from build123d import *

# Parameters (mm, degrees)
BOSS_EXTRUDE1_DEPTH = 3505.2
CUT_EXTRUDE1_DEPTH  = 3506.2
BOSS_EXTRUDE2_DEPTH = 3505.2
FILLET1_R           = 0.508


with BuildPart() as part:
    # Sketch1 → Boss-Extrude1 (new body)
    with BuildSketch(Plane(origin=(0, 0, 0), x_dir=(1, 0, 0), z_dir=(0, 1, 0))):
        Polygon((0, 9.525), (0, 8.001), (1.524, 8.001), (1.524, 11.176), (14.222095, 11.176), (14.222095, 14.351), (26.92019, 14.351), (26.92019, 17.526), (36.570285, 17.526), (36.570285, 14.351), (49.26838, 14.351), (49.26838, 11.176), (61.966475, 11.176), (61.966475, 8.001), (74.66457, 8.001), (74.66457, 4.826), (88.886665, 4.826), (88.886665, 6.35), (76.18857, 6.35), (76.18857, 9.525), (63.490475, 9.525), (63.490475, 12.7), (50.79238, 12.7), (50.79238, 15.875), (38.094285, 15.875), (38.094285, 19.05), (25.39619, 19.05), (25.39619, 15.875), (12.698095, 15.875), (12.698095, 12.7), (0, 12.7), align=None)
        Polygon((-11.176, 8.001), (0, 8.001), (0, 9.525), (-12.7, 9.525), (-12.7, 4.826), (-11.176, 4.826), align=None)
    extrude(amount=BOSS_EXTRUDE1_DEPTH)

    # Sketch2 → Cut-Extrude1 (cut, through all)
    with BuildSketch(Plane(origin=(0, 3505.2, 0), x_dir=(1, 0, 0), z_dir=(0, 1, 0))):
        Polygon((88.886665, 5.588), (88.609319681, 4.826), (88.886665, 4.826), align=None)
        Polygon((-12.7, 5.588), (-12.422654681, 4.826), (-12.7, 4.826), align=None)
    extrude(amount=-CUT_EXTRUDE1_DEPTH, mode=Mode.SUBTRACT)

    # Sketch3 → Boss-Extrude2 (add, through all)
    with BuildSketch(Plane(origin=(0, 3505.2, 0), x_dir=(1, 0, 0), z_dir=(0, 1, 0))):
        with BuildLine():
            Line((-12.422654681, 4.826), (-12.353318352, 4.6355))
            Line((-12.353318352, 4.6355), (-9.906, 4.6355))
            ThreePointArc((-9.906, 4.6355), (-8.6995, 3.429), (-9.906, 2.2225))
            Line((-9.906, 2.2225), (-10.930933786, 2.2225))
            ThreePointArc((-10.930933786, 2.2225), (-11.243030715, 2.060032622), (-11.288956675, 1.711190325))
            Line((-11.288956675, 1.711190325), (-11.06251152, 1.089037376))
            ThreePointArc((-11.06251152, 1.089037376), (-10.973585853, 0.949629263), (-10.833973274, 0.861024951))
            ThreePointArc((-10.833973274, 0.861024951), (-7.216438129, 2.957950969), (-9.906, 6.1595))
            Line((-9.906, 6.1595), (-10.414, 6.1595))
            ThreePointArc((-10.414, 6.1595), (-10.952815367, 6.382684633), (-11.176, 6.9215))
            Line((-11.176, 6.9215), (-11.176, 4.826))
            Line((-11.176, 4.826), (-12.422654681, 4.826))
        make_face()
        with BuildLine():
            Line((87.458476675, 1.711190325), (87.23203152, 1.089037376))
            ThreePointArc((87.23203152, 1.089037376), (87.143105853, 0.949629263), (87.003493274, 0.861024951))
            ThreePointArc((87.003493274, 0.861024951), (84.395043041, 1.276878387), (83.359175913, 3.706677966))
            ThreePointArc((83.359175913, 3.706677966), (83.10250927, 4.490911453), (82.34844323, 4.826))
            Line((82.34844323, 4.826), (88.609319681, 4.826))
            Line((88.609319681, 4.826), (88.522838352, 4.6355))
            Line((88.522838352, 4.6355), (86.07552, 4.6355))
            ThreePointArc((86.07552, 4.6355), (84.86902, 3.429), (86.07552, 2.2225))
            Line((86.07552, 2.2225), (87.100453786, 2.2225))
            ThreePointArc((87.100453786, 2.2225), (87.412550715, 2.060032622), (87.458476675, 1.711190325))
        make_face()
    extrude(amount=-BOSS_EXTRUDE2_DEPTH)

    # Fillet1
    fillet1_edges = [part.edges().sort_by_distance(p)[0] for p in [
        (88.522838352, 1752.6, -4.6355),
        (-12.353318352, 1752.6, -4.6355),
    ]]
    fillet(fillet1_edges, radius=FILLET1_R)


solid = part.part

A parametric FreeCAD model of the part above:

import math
import FreeCAD as App
import Part
import Sketcher
Q = App.Units.Quantity


def edges_at(feature, points):
    """Names of the edges that pass closest to the given points."""
    edges = feature.Shape.Edges
    near = lambda p: min(range(len(edges)), key=lambda i: edges[i].distToShape(Part.Vertex(*p))[0])
    return sorted({f"Edge{near(p) + 1}" for p in points})

doc = App.newDocument("Part")
body = doc.addObject("PartDesign::Body", "Body")

# Sketch on XZ plane
sketch1 = body.newObject("Sketcher::SketchObject", "Sketch")
sketch1.AttachmentSupport = (doc.getObject("XZ_Plane"), [""])
sketch1.MapMode = "FlatFace"
sketch1.addGeometry([
    Part.LineSegment(App.Vector(1.5, -8, 0), App.Vector(1.5, -11.2, 0)),  # 0
    Part.LineSegment(App.Vector(1.5, -11.2, 0), App.Vector(14.2, -11.2, 0)),  # 1
    Part.LineSegment(App.Vector(14.2, -11.2, 0), App.Vector(14.2, -14.4, 0)),  # 2
    Part.LineSegment(App.Vector(14.2, -14.4, 0), App.Vector(26.9, -14.4, 0)),  # 3
    Part.LineSegment(App.Vector(26.9, -14.4, 0), App.Vector(26.9, -17.5, 0)),  # 4
    Part.LineSegment(App.Vector(26.9, -17.5, 0), App.Vector(36.6, -17.5, 0)),  # 5
    Part.LineSegment(App.Vector(36.6, -17.5, 0), App.Vector(36.6, -14.4, 0)),  # 6
    Part.LineSegment(App.Vector(36.6, -14.4, 0), App.Vector(49.3, -14.4, 0)),  # 7
    Part.LineSegment(App.Vector(49.3, -14.4, 0), App.Vector(49.3, -11.2, 0)),  # 8
    Part.LineSegment(App.Vector(49.3, -11.2, 0), App.Vector(62, -11.2, 0)),  # 9
    Part.LineSegment(App.Vector(62, -11.2, 0), App.Vector(62, -8, 0)),  # 10
    Part.LineSegment(App.Vector(62, -8, 0), App.Vector(74.7, -8, 0)),  # 11
    Part.LineSegment(App.Vector(74.7, -8, 0), App.Vector(74.7, -4.8, 0)),  # 12
    Part.LineSegment(App.Vector(74.7, -4.8, 0), App.Vector(88.9, -4.8, 0)),  # 13
    Part.LineSegment(App.Vector(88.9, -4.8, 0), App.Vector(88.9, -6.3, 0)),  # 14
    Part.LineSegment(App.Vector(88.9, -6.3, 0), App.Vector(76.2, -6.3, 0)),  # 15
    Part.LineSegment(App.Vector(76.2, -6.3, 0), App.Vector(76.2, -9.5, 0)),  # 16
    Part.LineSegment(App.Vector(76.2, -9.5, 0), App.Vector(63.5, -9.5, 0)),  # 17
    Part.LineSegment(App.Vector(63.5, -9.5, 0), App.Vector(63.5, -12.7, 0)),  # 18
    Part.LineSegment(App.Vector(63.5, -12.7, 0), App.Vector(50.8, -12.7, 0)),  # 19
    Part.LineSegment(App.Vector(50.8, -12.7, 0), App.Vector(50.8, -15.9, 0)),  # 20
    Part.LineSegment(App.Vector(50.8, -15.9, 0), App.Vector(38.1, -15.9, 0)),  # 21
    Part.LineSegment(App.Vector(38.1, -15.9, 0), App.Vector(38.1, -19.1, 0)),  # 22
    Part.LineSegment(App.Vector(38.1, -19.1, 0), App.Vector(25.4, -19.1, 0)),  # 23
    Part.LineSegment(App.Vector(25.4, -19.1, 0), App.Vector(25.4, -15.9, 0)),  # 24
    Part.LineSegment(App.Vector(25.4, -15.9, 0), App.Vector(12.7, -15.9, 0)),  # 25
    Part.LineSegment(App.Vector(12.7, -15.9, 0), App.Vector(12.7, -12.7, 0)),  # 26
    Part.LineSegment(App.Vector(12.7, -12.7, 0), App.Vector(0, -12.7, 0)),  # 27
    Part.LineSegment(App.Vector(0, -12.7, 0), App.Vector(0, -9.5, 0)),  # 28
    Part.LineSegment(App.Vector(0, -9.5, 0), App.Vector(-12.7, -9.5, 0)),  # 29
    Part.LineSegment(App.Vector(-12.7, -9.5, 0), App.Vector(-12.7, -4.8, 0)),  # 30
    Part.LineSegment(App.Vector(-12.7, -4.8, 0), App.Vector(-11.2, -4.8, 0)),  # 31
    Part.LineSegment(App.Vector(-11.2, -4.8, 0), App.Vector(-11.2, -8, 0)),  # 32
    Part.LineSegment(App.Vector(-11.2, -8, 0), App.Vector(1.5, -8, 0)),  # 33
], False)
sketch1.addConstraint([
    Sketcher.Constraint("Coincident", 0, 2, 1, 1),
    Sketcher.Constraint("Coincident", 1, 2, 2, 1),
    Sketcher.Constraint("Coincident", 2, 2, 3, 1),
    Sketcher.Constraint("Coincident", 3, 2, 4, 1),
    Sketcher.Constraint("Coincident", 4, 2, 5, 1),
    Sketcher.Constraint("Coincident", 5, 2, 6, 1),
    Sketcher.Constraint("Coincident", 6, 2, 7, 1),
    Sketcher.Constraint("Coincident", 7, 2, 8, 1),
    Sketcher.Constraint("Coincident", 8, 2, 9, 1),
    Sketcher.Constraint("Coincident", 9, 2, 10, 1),
    Sketcher.Constraint("Coincident", 10, 2, 11, 1),
    Sketcher.Constraint("Coincident", 11, 2, 12, 1),
    Sketcher.Constraint("Coincident", 12, 2, 13, 1),
    Sketcher.Constraint("Coincident", 13, 2, 14, 1),
    Sketcher.Constraint("Coincident", 14, 2, 15, 1),
    Sketcher.Constraint("Coincident", 15, 2, 16, 1),
    Sketcher.Constraint("Coincident", 16, 2, 17, 1),
    Sketcher.Constraint("Coincident", 17, 2, 18, 1),
    Sketcher.Constraint("Coincident", 18, 2, 19, 1),
    Sketcher.Constraint("Coincident", 19, 2, 20, 1),
    Sketcher.Constraint("Coincident", 20, 2, 21, 1),
    Sketcher.Constraint("Coincident", 21, 2, 22, 1),
    Sketcher.Constraint("Coincident", 22, 2, 23, 1),
    Sketcher.Constraint("Coincident", 23, 2, 24, 1),
    Sketcher.Constraint("Coincident", 24, 2, 25, 1),
    Sketcher.Constraint("Coincident", 25, 2, 26, 1),
    Sketcher.Constraint("Coincident", 26, 2, 27, 1),
    Sketcher.Constraint("Coincident", 27, 2, 28, 1),
    Sketcher.Constraint("Coincident", 28, 2, 29, 1),
    Sketcher.Constraint("Coincident", 29, 2, 30, 1),
    Sketcher.Constraint("Coincident", 30, 2, 31, 1),
    Sketcher.Constraint("Coincident", 31, 2, 32, 1),
    Sketcher.Constraint("Coincident", 32, 2, 33, 1),
    Sketcher.Constraint("Coincident", 33, 2, 0, 1),
    Sketcher.Constraint("Vertical", 0),
    Sketcher.Constraint("Horizontal", 1),
    Sketcher.Constraint("Vertical", 2),
    Sketcher.Constraint("Horizontal", 3),
    Sketcher.Constraint("Vertical", 4),
    Sketcher.Constraint("Horizontal", 5),
    Sketcher.Constraint("Vertical", 6),
    Sketcher.Constraint("Horizontal", 7),
    Sketcher.Constraint("Vertical", 8),
    Sketcher.Constraint("Horizontal", 9),
    Sketcher.Constraint("Vertical", 10),
    Sketcher.Constraint("Horizontal", 11),
    Sketcher.Constraint("Vertical", 12),
    Sketcher.Constraint("Horizontal", 13),
    Sketcher.Constraint("Vertical", 14),
    Sketcher.Constraint("Horizontal", 15),
    Sketcher.Constraint("Vertical", 16),
    Sketcher.Constraint("Horizontal", 17),
    Sketcher.Constraint("Vertical", 18),
    Sketcher.Constraint("Horizontal", 19),
    Sketcher.Constraint("Vertical", 20),
    Sketcher.Constraint("Horizontal", 21),
    Sketcher.Constraint("Vertical", 22),
    Sketcher.Constraint("Horizontal", 23),
    Sketcher.Constraint("Vertical", 24),
    Sketcher.Constraint("Horizontal", 25),
    Sketcher.Constraint("Vertical", 26),
    Sketcher.Constraint("Horizontal", 27),
    Sketcher.Constraint("Vertical", 28),
    Sketcher.Constraint("Horizontal", 29),
    Sketcher.Constraint("Vertical", 30),
    Sketcher.Constraint("Horizontal", 31),
    Sketcher.Constraint("Vertical", 32),
    Sketcher.Constraint("Horizontal", 33),
    Sketcher.Constraint("PointOnObject", 27, 2, -2),
    Sketcher.Constraint("Horizontal", 3, 2, 6, 2),
    Sketcher.Constraint("Horizontal", 1, 2, 8, 2),
    Sketcher.Constraint("Horizontal", 21, 2, 24, 2),
    Sketcher.Constraint("Horizontal", 19, 2, 26, 2),
    Sketcher.Constraint("Horizontal", 17, 2, 28, 2),
    Sketcher.Constraint("Horizontal", 13, 2, 30, 2),
    Sketcher.Constraint("Horizontal", 11, 2, 32, 2),
    Sketcher.Constraint("Equal", 1, 3),
    Sketcher.Constraint("Equal", 3, 7),
    Sketcher.Constraint("Equal", 7, 9),
    Sketcher.Constraint("Equal", 9, 11),
    Sketcher.Constraint("Equal", 11, 15),
    Sketcher.Constraint("Equal", 15, 17),
    Sketcher.Constraint("Equal", 17, 19),
    Sketcher.Constraint("Equal", 19, 21),
    Sketcher.Constraint("Equal", 21, 23),
    Sketcher.Constraint("Equal", 23, 25),
    Sketcher.Constraint("Equal", 25, 27),
    Sketcher.Constraint("Equal", 29, 33),
    Sketcher.Constraint("Equal", 0, 2),
    Sketcher.Constraint("Equal", 2, 4),
    Sketcher.Constraint("Equal", 10, 12),
    Sketcher.Constraint("Equal", 31, 14),
    Sketcher.Constraint("Equal", 12, 16),
    Sketcher.Constraint("Equal", 16, 18),
    Sketcher.Constraint("Equal", 18, 20),
    Sketcher.Constraint("Equal", 20, 22),
    Sketcher.Constraint("DistanceX", 29, 2, 29, 1, Q("0.5 in")),
    Sketcher.Constraint("DistanceX", 31, 1, 31, 2, Q("0.06 in")),
    Sketcher.Constraint("DistanceY", 18, 2, -1, 1, Q("0.5 in")),
    Sketcher.Constraint("DistanceY", 0, 2, 0, 1, Q("0.125 in")),
    Sketcher.Constraint("DistanceX", 12, 2, 15, 2, Q("0.06 in")),
    Sketcher.Constraint("DistanceX", -1, 1, 7, 2, Q("1.9397 in")),
])
pad1 = body.newObject("PartDesign::Pad", "Pad")
pad1.Profile = sketch1
pad1.Length = Q("138 in")
pad1.Reversed = True

# Sketch on XZ plane
sketch2 = body.newObject("Sketcher::SketchObject", "Sketch001")
sketch2.AttachmentSupport = (doc.getObject("XZ_Plane"), [""])
sketch2.MapMode = "FlatFace"
sketch2.AttachmentOffset = App.Placement(App.Vector(0, 0, -138 * 25.4), App.Rotation())
sketch2.addGeometry([
    Part.LineSegment(App.Vector(88.89, -5.59, 0), App.Vector(88.61, -4.83, 0)),  # 0
    Part.LineSegment(App.Vector(88.61, -4.83, 0), App.Vector(88.89, -4.83, 0)),  # 1
    Part.LineSegment(App.Vector(88.89, -4.83, 0), App.Vector(88.89, -5.59, 0)),  # 2
    Part.LineSegment(App.Vector(-12.42, -4.83, 0), App.Vector(-12.7, -5.59, 0)),  # 3
    Part.LineSegment(App.Vector(-12.7, -5.59, 0), App.Vector(-12.7, -4.83, 0)),  # 4
    Part.LineSegment(App.Vector(-12.7, -4.83, 0), App.Vector(-12.42, -4.83, 0)),  # 5
], False)
sketch2.addConstraint([
    Sketcher.Constraint("Coincident", 0, 2, 1, 1),
    Sketcher.Constraint("Coincident", 1, 2, 2, 1),
    Sketcher.Constraint("Coincident", 2, 2, 0, 1),
    Sketcher.Constraint("Coincident", 3, 2, 4, 1),
    Sketcher.Constraint("Coincident", 4, 2, 5, 1),
    Sketcher.Constraint("Coincident", 5, 2, 3, 1),
    Sketcher.Constraint("Horizontal", 1),
    Sketcher.Constraint("Vertical", 2),
    Sketcher.Constraint("Vertical", 4),
    Sketcher.Constraint("Horizontal", 5),
    Sketcher.Constraint("Horizontal", 2, 2, 3, 2),
    Sketcher.Constraint("Horizontal", 1, 2, 4, 2),
    Sketcher.Constraint("Equal", 1, 5),
    Sketcher.Constraint("Angle", 0, Q("110 deg")),
    Sketcher.Constraint("DistanceY", 2, 2, 2, 1, Q("0.03 in")),
    Sketcher.Constraint("DistanceX", 3, 2, -1, 1, Q("0.5 in")),
    Sketcher.Constraint("DistanceY", 0, 2, -1, 1, Q("0.19 in")),
    Sketcher.Constraint("DistanceX", -1, 1, 0, 2, Q("88.60932 mm")),
])
pocket1 = body.newObject("PartDesign::Pocket", "Pocket")
pocket1.Profile = sketch2
pocket1.Type = "ThroughAll"
pocket1.Reversed = True

# Sketch on XZ plane
sketch3 = body.newObject("Sketcher::SketchObject", "Sketch002")
sketch3.AttachmentSupport = (doc.getObject("XZ_Plane"), [""])
sketch3.MapMode = "FlatFace"
sketch3.AttachmentOffset = App.Placement(App.Vector(0, 0, -138 * 25.4), App.Rotation())
sketch3.addGeometry([
    Part.LineSegment(App.Vector(-12.42, -4.83, 0), App.Vector(-12.35, -4.64, 0)),  # 0
    Part.LineSegment(App.Vector(-12.35, -4.64, 0), App.Vector(-9.91, -4.64, 0)),  # 1
    Part.ArcOfCircle(Part.Circle(App.Vector(-9.91, -3.43, 0), App.Vector(0, 0, 1), 1.21), math.radians(-90), math.radians(90)),  # 2
    Part.LineSegment(App.Vector(-9.91, -2.22, 0), App.Vector(-10.93, -2.22, 0)),  # 3
    Part.ArcOfCircle(Part.Circle(App.Vector(-10.93, -1.84, 0), App.Vector(0, 0, 1), 0.38), math.radians(160), math.radians(270)),  # 4
    Part.LineSegment(App.Vector(-11.29, -1.71, 0), App.Vector(-11.06, -1.09, 0)),  # 5
    Part.ArcOfCircle(Part.Circle(App.Vector(-10.7, -1.22, 0), App.Vector(0, 0, 1), 0.38), math.radians(110), math.radians(160)),  # 6
    Part.ArcOfCircle(Part.Circle(App.Vector(-9.91, -3.43, 0), App.Vector(0, 0, 1), 2.73), math.radians(-90), math.radians(110)),  # 7
    Part.LineSegment(App.Vector(-9.91, -6.16, 0), App.Vector(-10.41, -6.16, 0)),  # 8
    Part.ArcOfCircle(Part.Circle(App.Vector(-10.41, -6.92, 0), App.Vector(0, 0, 1), 0.76), math.radians(90), math.radians(180)),  # 9
    Part.LineSegment(App.Vector(-11.18, -6.92, 0), App.Vector(-11.18, -4.83, 0)),  # 10
    Part.LineSegment(App.Vector(-11.18, -4.83, 0), App.Vector(-12.42, -4.83, 0)),  # 11
    Part.LineSegment(App.Vector(87.23, -1.09, 0), App.Vector(87.46, -1.71, 0)),  # 12
    Part.ArcOfCircle(Part.Circle(App.Vector(87.1, -1.84, 0), App.Vector(0, 0, 1), 0.38), math.radians(-90), math.radians(20)),  # 13
    Part.LineSegment(App.Vector(87.1, -2.22, 0), App.Vector(86.08, -2.22, 0)),  # 14
    Part.ArcOfCircle(Part.Circle(App.Vector(86.08, -3.43, 0), App.Vector(0, 0, 1), 1.21), math.radians(90), math.radians(270)),  # 15
    Part.LineSegment(App.Vector(86.08, -4.64, 0), App.Vector(88.52, -4.64, 0)),  # 16
    Part.LineSegment(App.Vector(88.52, -4.64, 0), App.Vector(88.61, -4.83, 0)),  # 17
    Part.LineSegment(App.Vector(88.61, -4.83, 0), App.Vector(82.35, -4.83, 0)),  # 18
    Part.ArcOfCircle(Part.Circle(App.Vector(82.35, -3.81, 0), App.Vector(0, 0, 1), 1.02), math.radians(-90), math.radians(6)),  # 19
    Part.ArcOfCircle(Part.Circle(App.Vector(86.08, -3.43, 0), App.Vector(0, 0, 1), 2.73), math.radians(70), math.radians(186)),  # 20
    Part.ArcOfCircle(Part.Circle(App.Vector(86.87, -1.22, 0), App.Vector(0, 0, 1), 0.38), math.radians(20), math.radians(70)),  # 21
], False)
sketch3.addConstraint([
    Sketcher.Constraint("Coincident", 0, 2, 1, 1),
    Sketcher.Constraint("Tangent", 1, 2, 2, 1),
    Sketcher.Constraint("Tangent", 2, 2, 3, 1),
    Sketcher.Constraint("Tangent", 3, 2, 4, 2),
    Sketcher.Constraint("Tangent", 4, 1, 5, 1),
    Sketcher.Constraint("Tangent", 5, 2, 6, 2),
    Sketcher.Constraint("Tangent", 6, 1, 7, 2),
    Sketcher.Constraint("Tangent", 7, 1, 8, 1),
    Sketcher.Constraint("Tangent", 8, 2, 9, 1),
    Sketcher.Constraint("Tangent", 9, 2, 10, 1),
    Sketcher.Constraint("Coincident", 10, 2, 11, 1),
    Sketcher.Constraint("Coincident", 11, 2, 0, 1),
    Sketcher.Constraint("Tangent", 12, 2, 13, 2),
    Sketcher.Constraint("Tangent", 13, 1, 14, 1),
    Sketcher.Constraint("Tangent", 14, 2, 15, 1),
    Sketcher.Constraint("Tangent", 15, 2, 16, 1),
    Sketcher.Constraint("Coincident", 16, 2, 17, 1),
    Sketcher.Constraint("Coincident", 17, 2, 18, 1),
    Sketcher.Constraint("Tangent", 18, 2, 19, 1),
    Sketcher.Constraint("Tangent", 19, 2, 20, 2),
    Sketcher.Constraint("Tangent", 20, 1, 21, 2),
    Sketcher.Constraint("Tangent", 21, 1, 12, 1),
    Sketcher.Constraint("Horizontal", 1),
    Sketcher.Constraint("Horizontal", 3),
    Sketcher.Constraint("Horizontal", 8),
    Sketcher.Constraint("Vertical", 10),
    Sketcher.Constraint("Horizontal", 11),
    Sketcher.Constraint("Horizontal", 14),
    Sketcher.Constraint("Horizontal", 16),
    Sketcher.Constraint("Horizontal", 18),
    Sketcher.Constraint("Coincident", 7, 3, 2, 3),
    Sketcher.Constraint("Coincident", 20, 3, 15, 3),
    Sketcher.Constraint("Equal", 4, 6),
    Sketcher.Constraint("Equal", 6, 13),
    Sketcher.Constraint("Equal", 2, 15),
    Sketcher.Constraint("Equal", 7, 20),
    Sketcher.Constraint("Equal", 13, 21),
    Sketcher.Constraint("Parallel", 0, 5),
    Sketcher.Constraint("Horizontal", 4, 3, 13, 3),
    Sketcher.Constraint("Horizontal", 6, 3, 21, 3),
    Sketcher.Constraint("Horizontal", 4, 1, 12, 2),
    Sketcher.Constraint("Horizontal", 11, 2, 17, 2),
    Sketcher.Constraint("Equal", 1, 16),
    Sketcher.Constraint("Radius", 9, Q("0.03 in")),
    Sketcher.Constraint("Radius", 19, Q("0.04 in")),
    Sketcher.Constraint("Angle", 0, Q("70 deg")),
    Sketcher.Constraint("Radius", 4, Q("0.015 in")),
    Sketcher.Constraint("DistanceX", 8, 2, 8, 1, Q("0.02 in")),
    Sketcher.Constraint("Radius", 2, Q("0.0475 in")),
    Sketcher.Constraint("Radius", 7, Q("0.1075 in")),
    Sketcher.Constraint("DistanceX", 2, 3, -1, 1, Q("0.39 in")),
    Sketcher.Constraint("DistanceY", 19, 3, -1, 1, Q("0.15 in")),
    Sketcher.Constraint("DistanceY", 10, 1, 10, 2, Q("0.0825 in")),
    Sketcher.Constraint("DistanceX", -1, 1, 15, 3, Q("3.3888 in")),
    Sketcher.Constraint("DistanceX", 1, 1, 1, 2, Q("2.447318 mm")),
    Sketcher.Constraint("DistanceX", 15, 2, 17, 2, Q("2.5338 mm")),
    Sketcher.Constraint("Distance", 5, Q("0.662081 mm")),
])
pad2 = body.newObject("PartDesign::Pad", "Pad001")
pad2.Profile = sketch3
pad2.Length = Q("138 in")
doc.recompute()

fillet = body.newObject("PartDesign::Fillet", "Fillet")
fillet.Base = (pad2, edges_at(pad2, [(88.523, 1752.6, -4.636), (-12.353, 1752.6, -4.636)]))
fillet.Radius = Q("0.02 in")

doc.recompute()
